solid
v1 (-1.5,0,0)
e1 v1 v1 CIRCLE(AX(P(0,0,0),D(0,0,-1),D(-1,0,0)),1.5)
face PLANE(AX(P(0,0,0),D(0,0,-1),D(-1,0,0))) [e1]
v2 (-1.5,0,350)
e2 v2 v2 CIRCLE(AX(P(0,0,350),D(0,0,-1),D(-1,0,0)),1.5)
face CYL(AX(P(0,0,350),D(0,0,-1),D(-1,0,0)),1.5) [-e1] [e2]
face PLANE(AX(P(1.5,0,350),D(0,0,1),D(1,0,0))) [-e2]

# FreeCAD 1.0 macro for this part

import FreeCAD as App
import Part
import Sketcher

V = App.Vector


def add_polygon(sketch, points):
    """Adds a closed chain of lines whose ends are joined by coincident constraints."""
    first, n = sketch.GeometryCount, len(points)
    for a, b in zip(points, points[1:] + points[:1]):
        sketch.addGeometry(Part.LineSegment(App.Vector(*a, 0), App.Vector(*b, 0)), False)
    for i in range(n):
        sketch.addConstraint(Sketcher.Constraint("Coincident", first + i, 2, first + (i + 1) % n, 1))

doc = App.newDocument("Part")
body = doc.addObject("PartDesign::Body", "Body")

sketch1 = body.newObject("Sketcher::SketchObject", "Sketch")
sketch1.AttachmentSupport = (doc.getObject("XZ_Plane"), [""])
sketch1.MapMode = "FlatFace"
add_polygon(sketch1, [(0, 350), (0, 0), (1.5, 0), (1.5, 350)])
sketch1.addConstraint([
    Sketcher.Constraint("Vertical", 0),
    Sketcher.Constraint("Horizontal", 1),
    Sketcher.Constraint("Vertical", 2),
    Sketcher.Constraint("Horizontal", 3),
    Sketcher.Constraint("Coincident", 0, 2, -1, 1),
    Sketcher.Constraint("DistanceY", 0, 2, 0, 1, 350.0),
    Sketcher.Constraint("DistanceX", 1, 1, 1, 2, 1.5),
])
revolution = body.newObject("PartDesign::Revolution", "Revolution")
revolution.Profile = sketch1
revolution.ReferenceAxis = (sketch1, ["V_Axis"])
revolution.Angle = 360

doc.recompute()
